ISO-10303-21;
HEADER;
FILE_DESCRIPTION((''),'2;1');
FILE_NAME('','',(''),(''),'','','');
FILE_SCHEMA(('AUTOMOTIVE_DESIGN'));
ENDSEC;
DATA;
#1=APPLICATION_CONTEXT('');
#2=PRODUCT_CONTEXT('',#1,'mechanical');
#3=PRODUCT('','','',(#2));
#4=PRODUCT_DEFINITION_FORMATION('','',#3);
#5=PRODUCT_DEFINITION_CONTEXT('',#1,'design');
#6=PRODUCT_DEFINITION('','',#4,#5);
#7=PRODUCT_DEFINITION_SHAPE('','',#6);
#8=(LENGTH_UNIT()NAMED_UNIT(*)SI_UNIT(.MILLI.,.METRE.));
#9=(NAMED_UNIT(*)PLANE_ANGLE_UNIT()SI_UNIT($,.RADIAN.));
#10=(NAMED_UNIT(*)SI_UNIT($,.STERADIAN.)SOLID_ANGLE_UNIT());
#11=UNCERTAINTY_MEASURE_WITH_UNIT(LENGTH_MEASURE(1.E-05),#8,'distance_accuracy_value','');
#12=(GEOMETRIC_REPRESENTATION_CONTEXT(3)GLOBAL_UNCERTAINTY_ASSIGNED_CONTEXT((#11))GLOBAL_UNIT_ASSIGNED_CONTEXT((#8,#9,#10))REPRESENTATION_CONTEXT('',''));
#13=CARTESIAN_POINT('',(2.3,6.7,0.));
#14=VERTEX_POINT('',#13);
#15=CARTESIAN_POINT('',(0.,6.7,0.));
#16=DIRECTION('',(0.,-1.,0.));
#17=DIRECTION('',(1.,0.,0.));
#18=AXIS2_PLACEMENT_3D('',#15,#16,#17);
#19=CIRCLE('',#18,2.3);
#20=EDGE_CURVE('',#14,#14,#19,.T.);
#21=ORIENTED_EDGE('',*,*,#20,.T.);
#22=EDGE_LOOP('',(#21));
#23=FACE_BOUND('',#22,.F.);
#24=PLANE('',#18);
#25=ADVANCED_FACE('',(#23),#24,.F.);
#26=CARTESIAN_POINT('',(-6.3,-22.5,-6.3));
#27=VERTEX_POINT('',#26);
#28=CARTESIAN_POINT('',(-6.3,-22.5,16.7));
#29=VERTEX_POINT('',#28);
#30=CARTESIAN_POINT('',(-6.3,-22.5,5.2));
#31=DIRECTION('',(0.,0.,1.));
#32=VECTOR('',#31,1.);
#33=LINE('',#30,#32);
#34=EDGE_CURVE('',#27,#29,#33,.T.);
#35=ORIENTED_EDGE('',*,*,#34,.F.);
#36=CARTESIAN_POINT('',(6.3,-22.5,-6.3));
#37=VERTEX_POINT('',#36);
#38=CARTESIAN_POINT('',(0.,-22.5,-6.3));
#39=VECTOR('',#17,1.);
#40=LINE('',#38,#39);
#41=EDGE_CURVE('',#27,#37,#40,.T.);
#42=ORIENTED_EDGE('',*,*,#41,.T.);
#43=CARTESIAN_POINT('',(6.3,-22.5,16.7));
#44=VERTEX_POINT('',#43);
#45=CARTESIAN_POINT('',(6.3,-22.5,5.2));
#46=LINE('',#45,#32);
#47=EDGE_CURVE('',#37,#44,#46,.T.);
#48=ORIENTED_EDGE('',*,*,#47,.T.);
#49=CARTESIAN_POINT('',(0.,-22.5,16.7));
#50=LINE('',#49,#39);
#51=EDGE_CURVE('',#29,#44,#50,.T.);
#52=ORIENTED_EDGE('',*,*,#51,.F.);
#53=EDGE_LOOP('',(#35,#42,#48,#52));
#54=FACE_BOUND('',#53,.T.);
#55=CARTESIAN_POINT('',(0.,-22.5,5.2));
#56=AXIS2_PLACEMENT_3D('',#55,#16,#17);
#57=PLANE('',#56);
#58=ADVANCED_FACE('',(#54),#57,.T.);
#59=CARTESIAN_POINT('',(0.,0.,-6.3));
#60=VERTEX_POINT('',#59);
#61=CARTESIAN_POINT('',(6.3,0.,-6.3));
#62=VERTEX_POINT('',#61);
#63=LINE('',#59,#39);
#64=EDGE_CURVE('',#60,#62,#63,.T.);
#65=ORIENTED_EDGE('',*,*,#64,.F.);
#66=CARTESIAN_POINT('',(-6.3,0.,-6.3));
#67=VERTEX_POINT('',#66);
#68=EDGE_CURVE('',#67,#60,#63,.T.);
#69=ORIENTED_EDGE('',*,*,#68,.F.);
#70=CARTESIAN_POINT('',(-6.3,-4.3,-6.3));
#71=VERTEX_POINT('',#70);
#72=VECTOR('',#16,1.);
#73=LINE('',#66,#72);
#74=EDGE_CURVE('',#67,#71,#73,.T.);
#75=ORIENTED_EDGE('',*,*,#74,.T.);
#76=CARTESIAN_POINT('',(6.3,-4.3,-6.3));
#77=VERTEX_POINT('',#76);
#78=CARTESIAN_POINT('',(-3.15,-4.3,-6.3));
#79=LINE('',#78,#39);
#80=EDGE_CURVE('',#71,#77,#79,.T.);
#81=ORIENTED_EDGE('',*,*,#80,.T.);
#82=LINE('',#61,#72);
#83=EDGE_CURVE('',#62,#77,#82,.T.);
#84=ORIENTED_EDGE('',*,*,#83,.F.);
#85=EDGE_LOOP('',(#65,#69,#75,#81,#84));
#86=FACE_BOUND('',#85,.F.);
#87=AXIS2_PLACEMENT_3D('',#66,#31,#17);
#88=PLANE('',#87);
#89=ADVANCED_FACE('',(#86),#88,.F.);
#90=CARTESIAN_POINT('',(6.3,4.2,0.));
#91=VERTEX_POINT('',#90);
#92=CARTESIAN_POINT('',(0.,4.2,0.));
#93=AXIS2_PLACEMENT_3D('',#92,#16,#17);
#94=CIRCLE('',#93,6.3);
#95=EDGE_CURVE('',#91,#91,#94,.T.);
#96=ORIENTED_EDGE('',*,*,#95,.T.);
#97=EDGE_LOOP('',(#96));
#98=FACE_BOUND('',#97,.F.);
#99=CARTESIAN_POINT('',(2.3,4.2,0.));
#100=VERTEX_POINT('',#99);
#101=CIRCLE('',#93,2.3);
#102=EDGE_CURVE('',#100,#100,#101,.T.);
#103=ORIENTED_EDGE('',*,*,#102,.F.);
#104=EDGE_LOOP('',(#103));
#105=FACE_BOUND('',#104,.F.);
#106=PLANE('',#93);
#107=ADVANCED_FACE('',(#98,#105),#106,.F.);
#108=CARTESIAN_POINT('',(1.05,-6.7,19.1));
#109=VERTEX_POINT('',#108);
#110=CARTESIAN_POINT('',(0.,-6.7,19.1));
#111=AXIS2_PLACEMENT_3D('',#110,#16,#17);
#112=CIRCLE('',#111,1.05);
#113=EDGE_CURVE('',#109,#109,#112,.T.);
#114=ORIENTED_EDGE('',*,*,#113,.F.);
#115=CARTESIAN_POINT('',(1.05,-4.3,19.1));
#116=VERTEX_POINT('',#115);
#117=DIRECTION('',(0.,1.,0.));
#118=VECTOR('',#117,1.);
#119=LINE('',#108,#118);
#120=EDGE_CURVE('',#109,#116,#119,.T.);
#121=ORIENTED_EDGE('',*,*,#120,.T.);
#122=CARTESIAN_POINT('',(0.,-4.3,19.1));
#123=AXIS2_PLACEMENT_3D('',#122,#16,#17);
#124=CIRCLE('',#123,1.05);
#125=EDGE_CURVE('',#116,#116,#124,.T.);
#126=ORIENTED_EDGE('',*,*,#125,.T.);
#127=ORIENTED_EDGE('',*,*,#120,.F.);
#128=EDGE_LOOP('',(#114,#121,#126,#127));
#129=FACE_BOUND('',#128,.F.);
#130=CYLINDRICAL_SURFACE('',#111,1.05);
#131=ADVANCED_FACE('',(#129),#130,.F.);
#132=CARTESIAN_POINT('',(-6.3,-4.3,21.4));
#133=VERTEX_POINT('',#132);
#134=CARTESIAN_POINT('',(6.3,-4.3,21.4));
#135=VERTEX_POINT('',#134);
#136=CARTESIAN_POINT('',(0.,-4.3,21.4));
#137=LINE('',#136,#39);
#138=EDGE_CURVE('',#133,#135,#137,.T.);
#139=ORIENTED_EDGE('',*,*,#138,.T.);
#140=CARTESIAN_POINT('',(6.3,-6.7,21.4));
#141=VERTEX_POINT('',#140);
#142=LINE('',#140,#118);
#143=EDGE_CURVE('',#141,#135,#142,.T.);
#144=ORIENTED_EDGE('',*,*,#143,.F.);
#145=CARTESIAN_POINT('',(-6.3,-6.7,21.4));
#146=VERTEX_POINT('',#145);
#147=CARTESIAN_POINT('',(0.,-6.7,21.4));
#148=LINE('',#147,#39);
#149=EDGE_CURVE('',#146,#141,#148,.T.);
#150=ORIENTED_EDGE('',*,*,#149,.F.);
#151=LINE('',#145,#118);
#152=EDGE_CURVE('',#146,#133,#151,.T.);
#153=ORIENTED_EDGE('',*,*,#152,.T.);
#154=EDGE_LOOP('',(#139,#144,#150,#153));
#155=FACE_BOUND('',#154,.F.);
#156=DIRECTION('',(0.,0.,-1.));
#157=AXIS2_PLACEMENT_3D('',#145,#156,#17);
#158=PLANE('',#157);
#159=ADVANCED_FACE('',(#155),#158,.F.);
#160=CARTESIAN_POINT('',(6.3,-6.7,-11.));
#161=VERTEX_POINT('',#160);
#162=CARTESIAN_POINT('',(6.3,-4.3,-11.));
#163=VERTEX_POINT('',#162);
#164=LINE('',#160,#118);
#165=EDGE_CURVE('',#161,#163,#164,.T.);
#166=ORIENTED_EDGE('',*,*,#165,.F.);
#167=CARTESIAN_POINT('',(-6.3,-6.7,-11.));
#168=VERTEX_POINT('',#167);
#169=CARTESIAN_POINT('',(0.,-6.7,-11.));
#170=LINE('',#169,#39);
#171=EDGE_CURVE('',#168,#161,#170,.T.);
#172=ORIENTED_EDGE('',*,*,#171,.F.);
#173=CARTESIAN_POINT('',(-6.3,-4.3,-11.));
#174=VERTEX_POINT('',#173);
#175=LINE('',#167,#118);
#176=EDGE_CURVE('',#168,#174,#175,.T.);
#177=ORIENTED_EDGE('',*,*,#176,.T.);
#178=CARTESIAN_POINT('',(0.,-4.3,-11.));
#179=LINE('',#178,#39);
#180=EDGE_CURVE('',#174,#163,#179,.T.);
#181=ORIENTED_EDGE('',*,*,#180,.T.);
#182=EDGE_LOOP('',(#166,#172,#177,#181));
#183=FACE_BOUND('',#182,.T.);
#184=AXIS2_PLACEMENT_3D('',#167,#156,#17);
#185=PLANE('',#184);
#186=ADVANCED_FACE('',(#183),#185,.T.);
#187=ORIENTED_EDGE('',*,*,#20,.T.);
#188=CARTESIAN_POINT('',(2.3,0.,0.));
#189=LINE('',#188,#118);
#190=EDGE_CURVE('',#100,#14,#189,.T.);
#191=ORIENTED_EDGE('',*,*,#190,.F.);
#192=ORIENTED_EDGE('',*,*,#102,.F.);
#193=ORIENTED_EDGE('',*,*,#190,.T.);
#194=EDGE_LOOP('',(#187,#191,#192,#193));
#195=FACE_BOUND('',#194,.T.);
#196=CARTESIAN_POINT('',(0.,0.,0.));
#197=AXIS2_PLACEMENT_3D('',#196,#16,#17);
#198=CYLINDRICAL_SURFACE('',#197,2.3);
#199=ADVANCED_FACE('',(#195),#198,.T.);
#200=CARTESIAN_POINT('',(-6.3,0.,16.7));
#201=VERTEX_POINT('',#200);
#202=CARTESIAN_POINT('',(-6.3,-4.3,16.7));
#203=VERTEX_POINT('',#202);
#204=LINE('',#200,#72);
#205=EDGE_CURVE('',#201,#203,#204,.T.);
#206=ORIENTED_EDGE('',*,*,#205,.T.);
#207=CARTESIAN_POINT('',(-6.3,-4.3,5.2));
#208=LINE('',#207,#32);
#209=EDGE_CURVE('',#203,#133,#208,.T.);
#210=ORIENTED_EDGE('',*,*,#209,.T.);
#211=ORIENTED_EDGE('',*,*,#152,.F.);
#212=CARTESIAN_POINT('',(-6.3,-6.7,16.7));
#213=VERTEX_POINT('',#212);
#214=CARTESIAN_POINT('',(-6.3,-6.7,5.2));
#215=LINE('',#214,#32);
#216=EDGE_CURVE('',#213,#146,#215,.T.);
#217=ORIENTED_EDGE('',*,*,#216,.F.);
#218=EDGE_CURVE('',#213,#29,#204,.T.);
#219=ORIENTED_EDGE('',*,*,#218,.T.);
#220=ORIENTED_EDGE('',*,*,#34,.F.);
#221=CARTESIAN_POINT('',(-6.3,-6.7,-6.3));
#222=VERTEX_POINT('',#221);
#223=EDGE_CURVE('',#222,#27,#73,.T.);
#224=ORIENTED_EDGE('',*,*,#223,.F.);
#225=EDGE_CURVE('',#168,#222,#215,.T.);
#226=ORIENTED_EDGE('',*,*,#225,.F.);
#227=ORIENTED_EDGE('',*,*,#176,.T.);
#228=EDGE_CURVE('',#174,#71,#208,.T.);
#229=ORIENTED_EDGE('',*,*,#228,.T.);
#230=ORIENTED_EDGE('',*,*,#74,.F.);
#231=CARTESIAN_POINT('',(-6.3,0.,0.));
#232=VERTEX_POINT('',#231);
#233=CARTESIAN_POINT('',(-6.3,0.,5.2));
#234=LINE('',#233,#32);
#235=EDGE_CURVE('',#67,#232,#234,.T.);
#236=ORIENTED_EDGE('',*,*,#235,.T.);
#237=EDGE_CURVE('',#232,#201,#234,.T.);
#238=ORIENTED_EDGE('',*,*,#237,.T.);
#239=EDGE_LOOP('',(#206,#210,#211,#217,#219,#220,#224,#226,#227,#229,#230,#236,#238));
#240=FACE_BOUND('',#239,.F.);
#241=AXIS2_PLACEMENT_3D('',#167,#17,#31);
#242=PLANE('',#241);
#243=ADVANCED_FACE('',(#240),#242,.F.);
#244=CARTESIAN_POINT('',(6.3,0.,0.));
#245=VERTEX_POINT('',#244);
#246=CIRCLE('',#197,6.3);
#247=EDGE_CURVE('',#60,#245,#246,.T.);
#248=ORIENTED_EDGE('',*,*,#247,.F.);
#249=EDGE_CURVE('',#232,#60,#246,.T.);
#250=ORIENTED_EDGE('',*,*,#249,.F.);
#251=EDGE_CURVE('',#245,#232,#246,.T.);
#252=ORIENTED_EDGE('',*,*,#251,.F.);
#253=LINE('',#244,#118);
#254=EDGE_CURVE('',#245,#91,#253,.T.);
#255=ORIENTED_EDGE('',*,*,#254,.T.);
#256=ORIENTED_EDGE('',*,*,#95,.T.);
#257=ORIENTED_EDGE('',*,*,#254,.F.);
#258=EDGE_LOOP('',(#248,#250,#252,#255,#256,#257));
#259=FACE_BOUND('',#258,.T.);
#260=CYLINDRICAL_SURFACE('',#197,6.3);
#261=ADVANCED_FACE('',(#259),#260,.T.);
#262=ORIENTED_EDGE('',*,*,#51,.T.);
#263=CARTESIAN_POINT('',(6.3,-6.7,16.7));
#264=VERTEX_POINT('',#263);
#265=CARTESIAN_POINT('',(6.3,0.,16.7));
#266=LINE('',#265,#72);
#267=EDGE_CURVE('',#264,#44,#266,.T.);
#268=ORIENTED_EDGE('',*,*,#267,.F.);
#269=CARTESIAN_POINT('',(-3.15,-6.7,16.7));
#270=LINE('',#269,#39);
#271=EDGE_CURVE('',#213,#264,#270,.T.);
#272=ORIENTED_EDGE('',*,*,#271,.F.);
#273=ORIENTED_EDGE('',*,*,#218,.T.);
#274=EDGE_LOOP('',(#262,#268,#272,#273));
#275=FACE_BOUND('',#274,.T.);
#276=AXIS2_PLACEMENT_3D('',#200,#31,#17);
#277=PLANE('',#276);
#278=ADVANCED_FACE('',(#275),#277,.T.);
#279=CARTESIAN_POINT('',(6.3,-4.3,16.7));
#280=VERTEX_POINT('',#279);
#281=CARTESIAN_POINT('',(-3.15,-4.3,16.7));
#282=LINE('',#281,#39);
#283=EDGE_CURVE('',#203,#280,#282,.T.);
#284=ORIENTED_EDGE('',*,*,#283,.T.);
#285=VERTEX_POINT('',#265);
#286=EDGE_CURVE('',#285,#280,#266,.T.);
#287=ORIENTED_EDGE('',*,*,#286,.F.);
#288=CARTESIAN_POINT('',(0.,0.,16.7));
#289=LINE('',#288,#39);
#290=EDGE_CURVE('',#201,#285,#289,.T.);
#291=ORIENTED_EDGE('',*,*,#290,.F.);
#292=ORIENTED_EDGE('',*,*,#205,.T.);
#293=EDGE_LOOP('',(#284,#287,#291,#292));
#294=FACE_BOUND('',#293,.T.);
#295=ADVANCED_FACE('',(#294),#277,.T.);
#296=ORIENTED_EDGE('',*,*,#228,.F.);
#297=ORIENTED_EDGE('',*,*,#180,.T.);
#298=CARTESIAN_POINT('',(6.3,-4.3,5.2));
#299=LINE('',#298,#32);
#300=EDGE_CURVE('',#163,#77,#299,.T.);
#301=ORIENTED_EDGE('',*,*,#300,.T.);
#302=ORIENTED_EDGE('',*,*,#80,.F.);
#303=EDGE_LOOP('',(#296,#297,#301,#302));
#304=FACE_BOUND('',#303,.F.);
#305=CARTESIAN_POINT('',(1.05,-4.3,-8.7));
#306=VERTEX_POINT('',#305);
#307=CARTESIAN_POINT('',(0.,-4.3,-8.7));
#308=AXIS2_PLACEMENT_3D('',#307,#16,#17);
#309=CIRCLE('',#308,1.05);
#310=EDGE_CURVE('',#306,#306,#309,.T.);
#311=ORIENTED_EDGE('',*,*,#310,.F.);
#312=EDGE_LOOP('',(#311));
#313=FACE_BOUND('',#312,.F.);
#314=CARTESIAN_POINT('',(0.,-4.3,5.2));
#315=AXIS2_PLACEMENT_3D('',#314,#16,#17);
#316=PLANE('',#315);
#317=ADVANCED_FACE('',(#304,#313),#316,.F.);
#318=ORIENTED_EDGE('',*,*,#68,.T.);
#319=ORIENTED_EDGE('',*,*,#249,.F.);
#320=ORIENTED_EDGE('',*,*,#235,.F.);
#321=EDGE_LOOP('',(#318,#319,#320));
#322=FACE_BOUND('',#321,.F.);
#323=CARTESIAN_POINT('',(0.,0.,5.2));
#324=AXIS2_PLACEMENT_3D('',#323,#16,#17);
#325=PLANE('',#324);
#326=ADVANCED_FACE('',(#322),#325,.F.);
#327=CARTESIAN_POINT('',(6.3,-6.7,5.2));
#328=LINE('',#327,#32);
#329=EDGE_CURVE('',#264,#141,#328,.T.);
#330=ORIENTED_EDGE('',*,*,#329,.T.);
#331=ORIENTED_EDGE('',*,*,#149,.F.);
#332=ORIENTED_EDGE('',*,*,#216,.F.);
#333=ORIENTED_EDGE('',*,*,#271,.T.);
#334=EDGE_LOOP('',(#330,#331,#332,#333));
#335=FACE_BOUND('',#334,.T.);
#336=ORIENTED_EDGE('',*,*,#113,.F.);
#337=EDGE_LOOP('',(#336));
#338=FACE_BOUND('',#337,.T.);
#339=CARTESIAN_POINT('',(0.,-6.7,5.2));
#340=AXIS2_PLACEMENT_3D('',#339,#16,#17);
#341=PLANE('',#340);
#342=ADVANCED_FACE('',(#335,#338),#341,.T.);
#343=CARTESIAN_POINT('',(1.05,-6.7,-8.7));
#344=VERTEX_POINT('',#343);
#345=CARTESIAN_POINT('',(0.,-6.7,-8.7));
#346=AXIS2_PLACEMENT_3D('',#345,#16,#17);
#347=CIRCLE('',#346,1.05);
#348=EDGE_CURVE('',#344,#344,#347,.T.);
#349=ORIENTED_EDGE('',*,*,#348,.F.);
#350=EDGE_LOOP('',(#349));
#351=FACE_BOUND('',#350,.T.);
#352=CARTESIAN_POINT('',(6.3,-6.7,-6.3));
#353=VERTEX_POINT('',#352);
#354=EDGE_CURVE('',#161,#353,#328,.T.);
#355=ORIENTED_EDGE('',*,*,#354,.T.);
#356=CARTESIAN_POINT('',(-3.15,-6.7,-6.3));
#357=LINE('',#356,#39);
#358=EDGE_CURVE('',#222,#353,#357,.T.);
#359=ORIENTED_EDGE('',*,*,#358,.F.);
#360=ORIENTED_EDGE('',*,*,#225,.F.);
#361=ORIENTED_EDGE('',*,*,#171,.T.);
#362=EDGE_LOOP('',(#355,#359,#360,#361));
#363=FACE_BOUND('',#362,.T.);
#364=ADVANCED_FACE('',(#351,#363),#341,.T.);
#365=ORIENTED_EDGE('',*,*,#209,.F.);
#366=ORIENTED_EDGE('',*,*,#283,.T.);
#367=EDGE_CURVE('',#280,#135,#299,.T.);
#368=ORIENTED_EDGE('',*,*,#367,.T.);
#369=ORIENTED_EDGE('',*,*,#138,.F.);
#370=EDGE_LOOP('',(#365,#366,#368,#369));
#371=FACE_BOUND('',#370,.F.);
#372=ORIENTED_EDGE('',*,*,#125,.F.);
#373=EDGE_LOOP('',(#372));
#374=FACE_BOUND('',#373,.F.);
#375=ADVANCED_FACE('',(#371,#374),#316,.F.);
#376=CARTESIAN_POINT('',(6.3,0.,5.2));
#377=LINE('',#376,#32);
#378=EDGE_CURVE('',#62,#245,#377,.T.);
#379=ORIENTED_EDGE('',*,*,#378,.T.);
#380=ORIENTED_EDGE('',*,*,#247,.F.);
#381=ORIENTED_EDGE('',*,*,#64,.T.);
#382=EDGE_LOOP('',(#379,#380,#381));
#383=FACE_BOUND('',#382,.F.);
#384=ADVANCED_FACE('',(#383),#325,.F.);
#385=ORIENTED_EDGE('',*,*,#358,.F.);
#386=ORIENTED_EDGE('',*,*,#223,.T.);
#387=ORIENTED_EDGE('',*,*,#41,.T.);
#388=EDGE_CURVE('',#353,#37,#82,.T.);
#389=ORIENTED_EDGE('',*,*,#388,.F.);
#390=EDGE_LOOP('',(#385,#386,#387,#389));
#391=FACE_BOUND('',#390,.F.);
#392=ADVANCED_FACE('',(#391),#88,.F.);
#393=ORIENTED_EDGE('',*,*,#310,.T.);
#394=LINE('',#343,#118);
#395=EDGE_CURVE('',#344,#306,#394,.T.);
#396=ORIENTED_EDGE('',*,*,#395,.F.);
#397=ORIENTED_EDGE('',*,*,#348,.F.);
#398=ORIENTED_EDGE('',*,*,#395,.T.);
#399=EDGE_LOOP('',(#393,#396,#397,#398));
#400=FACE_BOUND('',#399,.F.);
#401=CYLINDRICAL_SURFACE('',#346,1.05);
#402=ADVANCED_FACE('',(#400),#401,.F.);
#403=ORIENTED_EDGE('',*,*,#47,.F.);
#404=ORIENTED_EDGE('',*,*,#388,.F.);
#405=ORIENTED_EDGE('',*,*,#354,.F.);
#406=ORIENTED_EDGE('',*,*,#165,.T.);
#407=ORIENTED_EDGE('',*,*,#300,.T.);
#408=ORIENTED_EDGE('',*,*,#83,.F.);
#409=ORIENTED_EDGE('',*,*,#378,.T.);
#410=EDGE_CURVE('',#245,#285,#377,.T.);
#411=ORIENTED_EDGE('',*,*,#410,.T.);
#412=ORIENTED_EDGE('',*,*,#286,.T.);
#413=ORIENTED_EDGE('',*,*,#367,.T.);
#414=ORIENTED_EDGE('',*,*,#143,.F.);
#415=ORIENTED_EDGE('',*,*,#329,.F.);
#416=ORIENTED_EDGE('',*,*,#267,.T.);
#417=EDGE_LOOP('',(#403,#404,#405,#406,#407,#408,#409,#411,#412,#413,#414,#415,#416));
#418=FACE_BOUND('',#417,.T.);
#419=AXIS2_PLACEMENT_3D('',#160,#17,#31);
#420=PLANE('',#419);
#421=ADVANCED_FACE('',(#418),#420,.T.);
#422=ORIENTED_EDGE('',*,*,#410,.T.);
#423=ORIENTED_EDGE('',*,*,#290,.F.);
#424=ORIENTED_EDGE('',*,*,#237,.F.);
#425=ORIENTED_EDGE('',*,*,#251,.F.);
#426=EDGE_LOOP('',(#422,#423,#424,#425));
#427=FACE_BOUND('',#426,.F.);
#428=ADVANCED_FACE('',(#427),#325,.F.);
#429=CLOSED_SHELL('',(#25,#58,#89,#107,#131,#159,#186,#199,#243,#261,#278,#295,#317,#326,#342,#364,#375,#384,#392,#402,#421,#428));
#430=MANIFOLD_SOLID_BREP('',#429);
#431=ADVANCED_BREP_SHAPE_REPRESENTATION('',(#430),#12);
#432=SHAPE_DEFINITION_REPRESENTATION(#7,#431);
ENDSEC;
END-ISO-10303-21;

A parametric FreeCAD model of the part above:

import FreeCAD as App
import Part
import Sketcher
from FreeCAD import Vector

doc = App.newDocument("Part")
params = doc.addObject("Spreadsheet::Sheet", "Params")
for row, (alias, value) in enumerate([
    ("sketch1_height", "23 mm"),
    ("sketch1_width", "12.6 mm"),
    ("pad1_length", "22.5 mm"),
    ("sketch2_width", "12.6 mm"),
    ("sketch2_height", "32.4 mm"),
    ("pad2_length", "2.4 mm"),
    ("sketch3_diameter", "2.1 mm"),
    ("pocket1_length", "25 mm"),
    ("sketch4_diameter", "12.6 mm"),
    ("pad3_length", "4.2 mm"),
    ("sketch5_diameter", "4.6 mm"),
    ("pad4_length", "6.7 mm"),
], start=1):
    params.set(f"A{row}", alias)
    params.set(f"B{row}", "=" + value)
    params.setAlias(f"B{row}", alias)

body = doc.addObject("PartDesign::Body", "Body")

sketch1 = body.newObject("Sketcher::SketchObject", "Sketch")
sketch1.AttachmentSupport = (doc.getObject("XZ_Plane"), [""])
sketch1.MapMode = "FlatFace"
sketch1.addGeometry(Part.LineSegment(Vector(-6.3, 16.7, 0), Vector(-6.3, -6.3, 0)), False)
sketch1.addGeometry(Part.LineSegment(Vector(-6.3, -6.3, 0), Vector(6.3, -6.3, 0)), False)
sketch1.addGeometry(Part.LineSegment(Vector(6.3, -6.3, 0), Vector(6.3, 16.7, 0)), False)
sketch1.addGeometry(Part.LineSegment(Vector(6.3, 16.7, 0), Vector(-6.3, 16.7, 0)), False)
sketch1.addConstraint(Sketcher.Constraint("Coincident", 0, 2, 1, 1))
sketch1.addConstraint(Sketcher.Constraint("Coincident", 1, 2, 2, 1))
sketch1.addConstraint(Sketcher.Constraint("Coincident", 2, 2, 3, 1))
sketch1.addConstraint(Sketcher.Constraint("Coincident", 3, 2, 0, 1))
sketch1.addConstraint(Sketcher.Constraint("Vertical", 0))
sketch1.addConstraint(Sketcher.Constraint("Horizontal", 1))
sketch1.addConstraint(Sketcher.Constraint("Vertical", 2))
sketch1.addConstraint(Sketcher.Constraint("Horizontal", 3))
sketch1.addConstraint(Sketcher.Constraint("DistanceY", 0, 2, 0, 1, 23.0))
sketch1.addConstraint(Sketcher.Constraint("DistanceX", 1, 1, 1, 2, 12.6))
sketch1.addConstraint(Sketcher.Constraint("DistanceX", 0, 2, -1, 1, 6.3))
sketch1.addConstraint(Sketcher.Constraint("DistanceY", 0, 2, -1, 1, 6.3))
sketch1.setExpression("Constraints[8]", "Params.sketch1_height")
sketch1.setExpression("Constraints[9]", "Params.sketch1_width")
pad1 = body.newObject("PartDesign::Pad", "Pad")
pad1.Profile = sketch1
pad1.setExpression("Length", "Params.pad1_length")

sketch2 = body.newObject("Sketcher::SketchObject", "Sketch001")
sketch2.AttachmentSupport = (doc.getObject("XZ_Plane"), [""])
sketch2.MapMode = "FlatFace"
sketch2.AttachmentOffset = App.Placement(Vector(0, 0, 6.7), App.Rotation())
sketch2.addGeometry(Part.LineSegment(Vector(-6.3, 21.4, 0), Vector(-6.3, -11, 0)), False)
sketch2.addGeometry(Part.LineSegment(Vector(-6.3, -11, 0), Vector(6.3, -11, 0)), False)
sketch2.addGeometry(Part.LineSegment(Vector(6.3, -11, 0), Vector(6.3, 21.4, 0)), False)
sketch2.addGeometry(Part.LineSegment(Vector(6.3, 21.4, 0), Vector(-6.3, 21.4, 0)), False)
sketch2.addConstraint(Sketcher.Constraint("Coincident", 0, 2, 1, 1))
sketch2.addConstraint(Sketcher.Constraint("Coincident", 1, 2, 2, 1))
sketch2.addConstraint(Sketcher.Constraint("Coincident", 2, 2, 3, 1))
sketch2.addConstraint(Sketcher.Constraint("Coincident", 3, 2, 0, 1))
sketch2.addConstraint(Sketcher.Constraint("Vertical", 0))
sketch2.addConstraint(Sketcher.Constraint("Horizontal", 1))
sketch2.addConstraint(Sketcher.Constraint("Vertical", 2))
sketch2.addConstraint(Sketcher.Constraint("Horizontal", 3))
sketch2.addConstraint(Sketcher.Constraint("DistanceX", 1, 1, 1, 2, 12.6))
sketch2.addConstraint(Sketcher.Constraint("DistanceY", 0, 2, 0, 1, 32.4))
sketch2.addConstraint(Sketcher.Constraint("DistanceY", 0, 2, -1, 1, 11.0))
sketch2.addConstraint(Sketcher.Constraint("DistanceX", 0, 2, -1, 1, 6.3))
sketch2.setExpression("Constraints[8]", "Params.sketch2_width")
sketch2.setExpression("Constraints[9]", "Params.sketch2_height")
pad2 = body.newObject("PartDesign::Pad", "Pad001")
pad2.Profile = sketch2
pad2.setExpression("Length", "Params.pad2_length")
pad2.Reversed = True

sketch3 = body.newObject("Sketcher::SketchObject", "Sketch002")
sketch3.AttachmentSupport = (doc.getObject("XZ_Plane"), [""])
sketch3.MapMode = "FlatFace"
sketch3.AttachmentOffset = App.Placement(Vector(0, 0, 6.7), App.Rotation())
sketch3.addGeometry(Part.Circle(Vector(0, 19.1, 0), Vector(0, 0, 1), 1.05), False)
sketch3.addGeometry(Part.Circle(Vector(0, -8.7, 0), Vector(0, 0, 1), 1.05), False)
sketch3.addConstraint(Sketcher.Constraint("Equal", 0, 1))
sketch3.addConstraint(Sketcher.Constraint("PointOnObject", 0, 3, -2))
sketch3.addConstraint(Sketcher.Constraint("PointOnObject", 1, 3, -2))
sketch3.addConstraint(Sketcher.Constraint("Diameter", 0, 2.1))
sketch3.addConstraint(Sketcher.Constraint("DistanceY", -1, 1, 0, 3, 19.1))
sketch3.addConstraint(Sketcher.Constraint("DistanceY", 1, 3, -1, 1, 8.7))
sketch3.setExpression("Constraints[3]", "Params.sketch3_diameter")
pocket1 = body.newObject("PartDesign::Pocket", "Pocket")
pocket1.Profile = sketch3
pocket1.setExpression("Length", "Params.pocket1_length")

sketch4 = body.newObject("Sketcher::SketchObject", "Sketch003")
sketch4.AttachmentSupport = (doc.getObject("XZ_Plane"), [""])
sketch4.MapMode = "FlatFace"
sketch4.addGeometry(Part.Circle(Vector(0, 0, 0), Vector(0, 0, 1), 6.3), False)
sketch4.addConstraint(Sketcher.Constraint("Coincident", 0, 3, -1, 1))
sketch4.addConstraint(Sketcher.Constraint("Diameter", 0, 12.6))
sketch4.setExpression("Constraints[1]", "Params.sketch4_diameter")
pad3 = body.newObject("PartDesign::Pad", "Pad002")
pad3.Profile = sketch4
pad3.setExpression("Length", "Params.pad3_length")
pad3.Reversed = True

sketch5 = body.newObject("Sketcher::SketchObject", "Sketch004")
sketch5.AttachmentSupport = (doc.getObject("XZ_Plane"), [""])
sketch5.MapMode = "FlatFace"
sketch5.addGeometry(Part.Circle(Vector(0, 0, 0), Vector(0, 0, 1), 2.3), False)
sketch5.addConstraint(Sketcher.Constraint("Coincident", 0, 3, -1, 1))
sketch5.addConstraint(Sketcher.Constraint("Diameter", 0, 4.6))
sketch5.setExpression("Constraints[1]", "Params.sketch5_diameter")
pad4 = body.newObject("PartDesign::Pad", "Pad003")
pad4.Profile = sketch5
pad4.setExpression("Length", "Params.pad4_length")
pad4.Reversed = True

doc.recompute()
